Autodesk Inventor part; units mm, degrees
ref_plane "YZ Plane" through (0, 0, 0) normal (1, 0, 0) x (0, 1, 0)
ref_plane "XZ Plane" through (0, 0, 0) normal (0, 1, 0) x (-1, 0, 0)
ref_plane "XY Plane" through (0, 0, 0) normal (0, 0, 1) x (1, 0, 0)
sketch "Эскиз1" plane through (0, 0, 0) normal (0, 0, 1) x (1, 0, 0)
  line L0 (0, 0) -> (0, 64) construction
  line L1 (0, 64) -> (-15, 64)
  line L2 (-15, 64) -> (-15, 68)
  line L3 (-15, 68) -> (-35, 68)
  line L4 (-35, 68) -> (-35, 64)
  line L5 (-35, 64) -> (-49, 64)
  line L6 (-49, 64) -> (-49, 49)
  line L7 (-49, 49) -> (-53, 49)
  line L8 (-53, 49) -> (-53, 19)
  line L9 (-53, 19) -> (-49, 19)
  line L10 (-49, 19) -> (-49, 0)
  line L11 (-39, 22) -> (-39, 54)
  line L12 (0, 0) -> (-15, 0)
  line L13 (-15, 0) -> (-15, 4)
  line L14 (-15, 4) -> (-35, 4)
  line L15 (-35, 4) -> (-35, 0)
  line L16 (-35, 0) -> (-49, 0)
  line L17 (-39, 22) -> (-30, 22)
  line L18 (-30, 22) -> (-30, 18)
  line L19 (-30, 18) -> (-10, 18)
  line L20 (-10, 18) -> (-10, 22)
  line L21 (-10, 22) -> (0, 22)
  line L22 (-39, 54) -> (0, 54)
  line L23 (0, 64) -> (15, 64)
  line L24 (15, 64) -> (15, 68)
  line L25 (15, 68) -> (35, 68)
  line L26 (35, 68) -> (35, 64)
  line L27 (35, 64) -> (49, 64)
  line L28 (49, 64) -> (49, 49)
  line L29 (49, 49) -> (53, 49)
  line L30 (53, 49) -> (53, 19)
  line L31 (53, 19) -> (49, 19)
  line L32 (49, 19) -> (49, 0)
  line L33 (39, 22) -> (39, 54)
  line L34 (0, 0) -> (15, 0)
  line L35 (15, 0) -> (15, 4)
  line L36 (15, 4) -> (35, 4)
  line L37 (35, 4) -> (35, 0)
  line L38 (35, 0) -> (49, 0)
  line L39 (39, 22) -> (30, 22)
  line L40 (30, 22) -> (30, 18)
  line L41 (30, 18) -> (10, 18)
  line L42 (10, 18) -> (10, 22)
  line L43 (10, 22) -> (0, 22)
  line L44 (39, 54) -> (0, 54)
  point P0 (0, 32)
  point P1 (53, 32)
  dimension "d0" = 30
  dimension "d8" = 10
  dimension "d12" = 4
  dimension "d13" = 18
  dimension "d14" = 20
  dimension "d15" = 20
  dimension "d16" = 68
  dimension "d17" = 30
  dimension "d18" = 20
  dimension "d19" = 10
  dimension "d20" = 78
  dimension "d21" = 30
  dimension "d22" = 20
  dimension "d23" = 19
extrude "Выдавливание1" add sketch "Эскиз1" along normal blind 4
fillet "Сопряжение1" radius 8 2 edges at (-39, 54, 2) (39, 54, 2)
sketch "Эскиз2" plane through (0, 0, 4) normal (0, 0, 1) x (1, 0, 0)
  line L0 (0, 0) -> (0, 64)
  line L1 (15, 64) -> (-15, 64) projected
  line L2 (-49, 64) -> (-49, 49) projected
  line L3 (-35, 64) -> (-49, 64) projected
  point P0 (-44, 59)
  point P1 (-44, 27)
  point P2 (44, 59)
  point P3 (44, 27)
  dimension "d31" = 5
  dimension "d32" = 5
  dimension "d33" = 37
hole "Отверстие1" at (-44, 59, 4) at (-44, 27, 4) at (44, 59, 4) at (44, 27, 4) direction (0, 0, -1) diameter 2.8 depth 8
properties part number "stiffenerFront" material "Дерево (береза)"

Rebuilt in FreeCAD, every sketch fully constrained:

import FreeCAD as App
import Part
import Sketcher


def edges_at(feature, points):
    """Names of the edges that pass closest to the given points."""
    edges = feature.Shape.Edges
    near = lambda p: min(range(len(edges)), key=lambda i: edges[i].distToShape(Part.Vertex(*p))[0])
    return sorted({f"Edge{near(p) + 1}" for p in points})


def add_polygon(sketch, points):
    """Adds a closed chain of lines whose ends are joined by coincident constraints."""
    first, n = sketch.GeometryCount, len(points)
    for a, b in zip(points, points[1:] + points[:1]):
        sketch.addGeometry(Part.LineSegment(App.Vector(*a, 0), App.Vector(*b, 0)), False)
    for i in range(n):
        sketch.addConstraint(Sketcher.Constraint("Coincident", first + i, 2, first + (i + 1) % n, 1))

doc = App.newDocument("Part")
params = doc.addObject("Spreadsheet::Sheet", "Params")
for row, (alias, value) in enumerate([
    ("sketch1_width", "30 mm"),
    ("sketch1_width2", "20 mm"),
    ("sketch1_width3", "4 mm"),
    ("sketch1_width4", "78 mm"),
    ("sketch1_height", "19 mm"),
    ("pad1_length", "4 mm"),
    ("fillet_radius", "8 mm"),
    ("sketch2_diameter", "2.8 mm"),
    ("hole_diameter", "2.8 mm"),
    ("hole_depth", "8 mm"),
], start=1):
    params.set(f"A{row}", alias)
    params.set(f"B{row}", "=" + value)
    params.setAlias(f"B{row}", alias)

body = doc.addObject("PartDesign::Body", "Body")

# Sketch on XY plane
sketch1 = body.newObject("Sketcher::SketchObject", "Sketch")
sketch1.AttachmentSupport = (doc.getObject("XY_Plane"), [""])
sketch1.MapMode = "FlatFace"
add_polygon(sketch1, [(15, 64), (-15, 64), (-15, 68), (-35, 68), (-35, 64), (-49, 64), (-49, 49), (-53, 49), (-53, 19), (-49, 19), (-49, 0), (-35, 0), (-35, 4), (-15, 4), (-15, 0), (15, 0), (15, 4), (35, 4), (35, 0), (49, 0), (49, 19), (53, 19), (53, 49), (49, 49), (49, 64), (35, 64), (35, 68), (15, 68)])  # lines 0-27
add_polygon(sketch1, [(-30, 22), (-39, 22), (-39, 54), (39, 54), (39, 22), (30, 22), (30, 18), (10, 18), (10, 22), (-10, 22), (-10, 18), (-30, 18)])  # lines 28-39
sketch1.addConstraint([
    Sketcher.Constraint("Horizontal", 0),
    Sketcher.Constraint("Vertical", 1),
    Sketcher.Constraint("Horizontal", 2),
    Sketcher.Constraint("Vertical", 3),
    Sketcher.Constraint("Horizontal", 4),
    Sketcher.Constraint("Vertical", 5),
    Sketcher.Constraint("Horizontal", 6),
    Sketcher.Constraint("Vertical", 7),
    Sketcher.Constraint("Horizontal", 8),
    Sketcher.Constraint("Vertical", 9),
    Sketcher.Constraint("Horizontal", 10),
    Sketcher.Constraint("Vertical", 11),
    Sketcher.Constraint("Horizontal", 12),
    Sketcher.Constraint("Vertical", 13),
    Sketcher.Constraint("Horizontal", 14),
    Sketcher.Constraint("Vertical", 15),
    Sketcher.Constraint("Horizontal", 16),
    Sketcher.Constraint("Vertical", 17),
    Sketcher.Constraint("Horizontal", 18),
    Sketcher.Constraint("Vertical", 19),
    Sketcher.Constraint("Horizontal", 20),
    Sketcher.Constraint("Vertical", 21),
    Sketcher.Constraint("Horizontal", 22),
    Sketcher.Constraint("Vertical", 23),
    Sketcher.Constraint("Horizontal", 24),
    Sketcher.Constraint("Vertical", 25),
    Sketcher.Constraint("Horizontal", 26),
    Sketcher.Constraint("Vertical", 27),
    Sketcher.Constraint("Horizontal", 28),
    Sketcher.Constraint("Vertical", 29),
    Sketcher.Constraint("Horizontal", 30),
    Sketcher.Constraint("Vertical", 31),
    Sketcher.Constraint("Horizontal", 32),
    Sketcher.Constraint("Vertical", 33),
    Sketcher.Constraint("Horizontal", 34),
    Sketcher.Constraint("Vertical", 35),
    Sketcher.Constraint("Horizontal", 36),
    Sketcher.Constraint("Vertical", 37),
    Sketcher.Constraint("Horizontal", 38),
    Sketcher.Constraint("Vertical", 39),
    Sketcher.Constraint("Symmetric", 13, 2, 14, 2, -1, 1),
    Sketcher.Constraint("Symmetric", 10, 2, 17, 2, -1, 1),
    Sketcher.Constraint("Symmetric", 9, 2, 18, 2, -2),
    Sketcher.Constraint("Symmetric", 7, 2, 20, 2, -2),
    Sketcher.Constraint("Symmetric", 5, 2, 22, 2, -2),
    Sketcher.Constraint("Symmetric", 3, 2, 24, 2, -2),
    Sketcher.Constraint("Symmetric", 1, 2, 26, 2, -2),
    Sketcher.Constraint("Symmetric", 28, 2, 31, 2, -2),
    Sketcher.Constraint("Symmetric", 34, 2, 37, 2, -2),
    Sketcher.Constraint("Horizontal", 0, 2, 3, 2),
    Sketcher.Constraint("Horizontal", 12, 2, 15, 2),
    Sketcher.Constraint("Horizontal", 32, 2, 35, 2),
    Sketcher.Constraint("Vertical", 5, 2, 8, 2),
    Sketcher.Constraint("Vertical", 3, 2, 10, 2),
    Sketcher.Constraint("Vertical", 1, 2, 12, 2),
    Sketcher.Constraint("Equal", 28, 32),
    Sketcher.Constraint("Equal", 26, 34),
    Sketcher.Constraint("Equal", 34, 36),
    Sketcher.Constraint("Equal", 22, 1),
    Sketcher.Constraint("Equal", 14, 7),
    Sketcher.Constraint("Equal", 3, 11),
    Sketcher.Constraint("Equal", 27, 33),
    Sketcher.Constraint("DistanceX", 0, 2, 0, 1, 30.0),
    Sketcher.Constraint("DistanceX", 2, 2, 2, 1, 20.0),
    Sketcher.Constraint("DistanceX", 6, 2, 6, 1, 4.0),
    Sketcher.Constraint("DistanceX", 30, 1, 30, 2, 78.0),
    Sketcher.Constraint("DistanceY", 9, 2, 9, 1, 19.0),
    Sketcher.Constraint("DistanceY", -1, 1, 1, 2, 68.0),
    Sketcher.Constraint("DistanceY", -1, 1, 33, 2, 18.0),
    Sketcher.Constraint("DistanceX", 6, 2, 3, 2, 18.0),
    Sketcher.Constraint("DistanceY", 29, 2, 3, 2, 10.0),
])
sketch1.setExpression("Constraints[102]", "Params.sketch1_width")
sketch1.setExpression("Constraints[103]", "Params.sketch1_width2")
sketch1.setExpression("Constraints[104]", "Params.sketch1_width3")
sketch1.setExpression("Constraints[105]", "Params.sketch1_width4")
sketch1.setExpression("Constraints[106]", "Params.sketch1_height")
pad1 = body.newObject("PartDesign::Pad", "Pad")
pad1.Profile = sketch1
pad1.setExpression("Length", "Params.pad1_length")
doc.recompute()

fillet = body.newObject("PartDesign::Fillet", "Fillet")
fillet.Base = (pad1, edges_at(pad1, [(-39, 54, 2), (39, 54, 2)]))
fillet.setExpression("Radius", "Params.fillet_radius")

# Sketch on XY plane
sketch2 = body.newObject("Sketcher::SketchObject", "Sketch001")
sketch2.AttachmentSupport = (doc.getObject("XY_Plane"), [""])
sketch2.MapMode = "FlatFace"
sketch2.AttachmentOffset = App.Placement(App.Vector(0, 0, 4), App.Rotation())
sketch2.addGeometry([
    Part.Circle(App.Vector(-44, 59, 0), App.Vector(0, 0, 1), 1.4),
    Part.Circle(App.Vector(-44, 27, 0), App.Vector(0, 0, 1), 1.4),
    Part.Circle(App.Vector(44, 59, 0), App.Vector(0, 0, 1), 1.4),
    Part.Circle(App.Vector(44, 27, 0), App.Vector(0, 0, 1), 1.4),
], False)
sketch2.addConstraint([
    Sketcher.Constraint("Equal", 0, 1),
    Sketcher.Constraint("Equal", 1, 2),
    Sketcher.Constraint("Equal", 2, 3),
    Sketcher.Constraint("Symmetric", 0, 3, 2, 3, -2),
    Sketcher.Constraint("Symmetric", 1, 3, 3, 3, -2),
    Sketcher.Constraint("Vertical", 0, 3, 1, 3),
    Sketcher.Constraint("Diameter", 0, 2.8),
    Sketcher.Constraint("DistanceX", 0, 3, -1, 1, 44.0),
    Sketcher.Constraint("DistanceY", -1, 1, 0, 3, 59.0),
    Sketcher.Constraint("DistanceY", -1, 1, 1, 3, 27.0),
])
sketch2.setExpression("Constraints[6]", "Params.sketch2_diameter")
doc.recompute()
hole = body.newObject("PartDesign::Hole", "Hole")
hole.Profile = sketch2
hole.ThreadType = "None"
hole.setExpression("Diameter", "Params.hole_diameter")
hole.DepthType = "Dimension"
hole.setExpression("Depth", "Params.hole_depth")
hole.DrillPoint = "Flat"

doc.recompute()
